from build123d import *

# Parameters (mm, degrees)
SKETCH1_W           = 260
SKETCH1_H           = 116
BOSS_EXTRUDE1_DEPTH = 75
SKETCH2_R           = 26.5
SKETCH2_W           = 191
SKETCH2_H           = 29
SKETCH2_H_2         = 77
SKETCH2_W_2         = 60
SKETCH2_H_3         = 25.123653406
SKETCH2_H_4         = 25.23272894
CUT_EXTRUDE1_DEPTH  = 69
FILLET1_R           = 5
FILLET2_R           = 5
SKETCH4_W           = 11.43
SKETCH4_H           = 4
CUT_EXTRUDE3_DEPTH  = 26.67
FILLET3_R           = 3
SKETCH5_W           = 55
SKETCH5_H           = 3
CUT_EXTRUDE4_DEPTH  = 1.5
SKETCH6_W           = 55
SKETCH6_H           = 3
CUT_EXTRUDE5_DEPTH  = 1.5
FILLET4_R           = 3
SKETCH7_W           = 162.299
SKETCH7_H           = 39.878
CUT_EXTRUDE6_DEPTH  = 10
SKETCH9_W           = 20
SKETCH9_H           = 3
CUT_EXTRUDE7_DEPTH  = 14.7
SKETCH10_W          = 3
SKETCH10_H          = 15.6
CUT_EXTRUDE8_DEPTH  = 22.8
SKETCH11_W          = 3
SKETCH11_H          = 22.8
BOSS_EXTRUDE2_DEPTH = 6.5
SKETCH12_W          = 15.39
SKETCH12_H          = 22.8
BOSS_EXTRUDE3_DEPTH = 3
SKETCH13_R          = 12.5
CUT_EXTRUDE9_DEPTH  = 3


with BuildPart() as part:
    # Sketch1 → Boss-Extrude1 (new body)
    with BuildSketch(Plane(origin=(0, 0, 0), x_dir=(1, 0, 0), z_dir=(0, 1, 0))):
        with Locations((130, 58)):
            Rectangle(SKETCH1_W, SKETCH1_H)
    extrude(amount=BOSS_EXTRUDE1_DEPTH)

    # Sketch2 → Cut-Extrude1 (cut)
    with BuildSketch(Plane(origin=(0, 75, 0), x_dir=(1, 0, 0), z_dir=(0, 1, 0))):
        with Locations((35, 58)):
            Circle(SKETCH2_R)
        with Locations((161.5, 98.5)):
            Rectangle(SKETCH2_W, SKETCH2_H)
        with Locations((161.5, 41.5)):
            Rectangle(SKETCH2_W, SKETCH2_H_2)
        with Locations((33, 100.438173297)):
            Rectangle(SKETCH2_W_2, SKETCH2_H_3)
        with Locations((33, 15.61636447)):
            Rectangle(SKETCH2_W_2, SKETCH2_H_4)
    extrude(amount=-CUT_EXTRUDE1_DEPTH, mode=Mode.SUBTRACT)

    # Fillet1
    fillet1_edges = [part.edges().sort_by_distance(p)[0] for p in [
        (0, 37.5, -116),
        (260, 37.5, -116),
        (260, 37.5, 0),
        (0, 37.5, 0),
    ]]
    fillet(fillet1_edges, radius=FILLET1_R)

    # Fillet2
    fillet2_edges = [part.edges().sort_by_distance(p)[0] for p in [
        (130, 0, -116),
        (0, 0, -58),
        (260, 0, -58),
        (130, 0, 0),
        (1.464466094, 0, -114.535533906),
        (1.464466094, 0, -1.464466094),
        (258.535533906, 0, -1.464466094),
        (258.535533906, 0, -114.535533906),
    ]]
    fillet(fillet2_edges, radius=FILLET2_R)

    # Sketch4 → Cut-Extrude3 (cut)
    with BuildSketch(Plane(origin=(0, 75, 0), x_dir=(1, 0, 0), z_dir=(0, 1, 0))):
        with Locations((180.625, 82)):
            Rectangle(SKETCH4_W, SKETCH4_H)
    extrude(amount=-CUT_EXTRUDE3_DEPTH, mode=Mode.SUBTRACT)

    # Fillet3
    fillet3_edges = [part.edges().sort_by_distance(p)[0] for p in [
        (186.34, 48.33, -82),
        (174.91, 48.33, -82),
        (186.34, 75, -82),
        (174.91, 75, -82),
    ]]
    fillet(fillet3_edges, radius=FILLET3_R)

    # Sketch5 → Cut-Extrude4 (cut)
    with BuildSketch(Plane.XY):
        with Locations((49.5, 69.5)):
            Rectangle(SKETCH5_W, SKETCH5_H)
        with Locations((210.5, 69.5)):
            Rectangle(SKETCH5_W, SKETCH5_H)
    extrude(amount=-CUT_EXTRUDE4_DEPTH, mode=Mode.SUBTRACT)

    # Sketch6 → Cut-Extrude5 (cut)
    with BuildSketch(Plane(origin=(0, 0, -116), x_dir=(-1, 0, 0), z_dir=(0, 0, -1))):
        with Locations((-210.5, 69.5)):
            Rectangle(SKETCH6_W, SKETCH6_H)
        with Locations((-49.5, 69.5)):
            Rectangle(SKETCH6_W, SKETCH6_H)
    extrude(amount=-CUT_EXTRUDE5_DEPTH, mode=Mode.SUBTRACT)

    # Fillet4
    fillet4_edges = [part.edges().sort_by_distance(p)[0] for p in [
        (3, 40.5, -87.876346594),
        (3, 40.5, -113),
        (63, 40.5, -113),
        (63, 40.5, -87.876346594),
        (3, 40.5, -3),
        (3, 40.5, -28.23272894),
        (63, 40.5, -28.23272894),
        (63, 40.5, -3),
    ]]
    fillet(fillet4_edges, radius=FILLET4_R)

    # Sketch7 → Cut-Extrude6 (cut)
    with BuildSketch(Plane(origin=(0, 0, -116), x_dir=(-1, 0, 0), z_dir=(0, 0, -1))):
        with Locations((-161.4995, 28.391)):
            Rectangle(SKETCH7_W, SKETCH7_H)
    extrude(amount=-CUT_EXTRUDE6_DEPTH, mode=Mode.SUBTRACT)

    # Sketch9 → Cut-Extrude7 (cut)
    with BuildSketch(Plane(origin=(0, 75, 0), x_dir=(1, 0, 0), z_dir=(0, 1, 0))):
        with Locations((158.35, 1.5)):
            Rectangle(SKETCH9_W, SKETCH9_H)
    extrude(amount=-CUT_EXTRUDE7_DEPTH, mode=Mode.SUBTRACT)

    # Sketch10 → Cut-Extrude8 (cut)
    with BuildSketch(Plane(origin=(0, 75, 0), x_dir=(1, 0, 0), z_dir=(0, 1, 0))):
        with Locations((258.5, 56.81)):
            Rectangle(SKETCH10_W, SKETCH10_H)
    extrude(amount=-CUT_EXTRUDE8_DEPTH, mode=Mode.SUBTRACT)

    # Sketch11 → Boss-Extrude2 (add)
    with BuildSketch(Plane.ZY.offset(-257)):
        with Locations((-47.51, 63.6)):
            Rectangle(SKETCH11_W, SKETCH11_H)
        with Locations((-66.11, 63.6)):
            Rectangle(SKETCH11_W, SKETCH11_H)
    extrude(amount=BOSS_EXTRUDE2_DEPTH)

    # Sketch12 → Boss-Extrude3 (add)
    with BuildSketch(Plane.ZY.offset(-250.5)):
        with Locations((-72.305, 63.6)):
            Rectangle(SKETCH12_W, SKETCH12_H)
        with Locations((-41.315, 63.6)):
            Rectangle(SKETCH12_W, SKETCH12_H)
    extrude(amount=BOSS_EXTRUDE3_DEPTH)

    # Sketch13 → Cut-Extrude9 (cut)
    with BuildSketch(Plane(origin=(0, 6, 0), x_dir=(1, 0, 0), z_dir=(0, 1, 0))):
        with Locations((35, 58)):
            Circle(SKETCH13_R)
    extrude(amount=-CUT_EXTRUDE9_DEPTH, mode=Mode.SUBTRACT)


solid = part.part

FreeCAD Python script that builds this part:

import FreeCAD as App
import Part
import Sketcher
from FreeCAD import Vector
Q = App.Units.Quantity


def edges_at(feature, points):
    """Names of the edges that pass closest to the given points."""
    edges = feature.Shape.Edges
    near = lambda p: min(range(len(edges)), key=lambda i: edges[i].distToShape(Part.Vertex(*p))[0])
    return sorted({f"Edge{near(p) + 1}" for p in points})


def add_polygon(sketch, points):
    """Adds a closed chain of lines whose ends are joined by coincident constraints."""
    first, n = sketch.GeometryCount, len(points)
    for a, b in zip(points, points[1:] + points[:1]):
        sketch.addGeometry(Part.LineSegment(App.Vector(*a, 0), App.Vector(*b, 0)), False)
    for i in range(n):
        sketch.addConstraint(Sketcher.Constraint("Coincident", first + i, 2, first + (i + 1) % n, 1))

doc = App.newDocument("Part")
body = doc.addObject("PartDesign::Body", "Body")

# Sketch on XZ plane
sketch1 = body.newObject("Sketcher::SketchObject", "Sketch")
sketch1.AttachmentSupport = (doc.getObject("XZ_Plane"), [""])
sketch1.MapMode = "FlatFace"
add_polygon(sketch1, [(0, -116), (0, 0), (260, 0), (260, -116)])  # lines 0-3
sketch1.addConstraint([
    Sketcher.Constraint("Vertical", 0),
    Sketcher.Constraint("Horizontal", 1),
    Sketcher.Constraint("Vertical", 2),
    Sketcher.Constraint("Horizontal", 3),
    Sketcher.Constraint("Coincident", 0, 2, -1, 1),
    Sketcher.Constraint("DistanceX", 1, 1, 1, 2, Q("260 mm")),
    Sketcher.Constraint("DistanceY", 0, 1, 0, 2, Q("116 mm")),
])
pad1 = body.newObject("PartDesign::Pad", "Pad")
pad1.Profile = sketch1
pad1.Length = 75
pad1.Reversed = True

# Sketch on XZ plane
sketch2 = body.newObject("Sketcher::SketchObject", "Sketch001")
sketch2.AttachmentSupport = (doc.getObject("XZ_Plane"), [""])
sketch2.MapMode = "FlatFace"
sketch2.AttachmentOffset = App.Placement(Vector(0, 0, -75), App.Rotation())
sketch2.addGeometry(Part.Circle(Vector(35, -58, 0), Vector(0, 0, 1), 26), False)  # 0
add_polygon(sketch2, [(66, -113), (66, -84), (257, -84), (257, -113)])  # lines 1-4
add_polygon(sketch2, [(66, -80), (66, -3), (257, -3), (257, -80)])  # lines 5-8
add_polygon(sketch2, [(3, -113), (3, -88), (63, -88), (63, -113)])  # lines 9-12
add_polygon(sketch2, [(3, -28), (3, -3), (63, -3), (63, -28)])  # lines 13-16
sketch2.addConstraint([
    Sketcher.Constraint("Vertical", 1),
    Sketcher.Constraint("Horizontal", 2),
    Sketcher.Constraint("Vertical", 3),
    Sketcher.Constraint("Horizontal", 4),
    Sketcher.Constraint("Vertical", 5),
    Sketcher.Constraint("Horizontal", 6),
    Sketcher.Constraint("Vertical", 7),
    Sketcher.Constraint("Horizontal", 8),
    Sketcher.Constraint("Vertical", 9),
    Sketcher.Constraint("Horizontal", 10),
    Sketcher.Constraint("Vertical", 11),
    Sketcher.Constraint("Horizontal", 12),
    Sketcher.Constraint("Vertical", 13),
    Sketcher.Constraint("Horizontal", 14),
    Sketcher.Constraint("Vertical", 15),
    Sketcher.Constraint("Horizontal", 16),
    Sketcher.Constraint("Horizontal", 4, 2, 11, 2),
    Sketcher.Constraint("Horizontal", 6, 2, 13, 2),
    Sketcher.Constraint("Vertical", 4, 2, 5, 2),
    Sketcher.Constraint("Vertical", 3, 2, 6, 2),
    Sketcher.Constraint("Vertical", 12, 2, 13, 2),
    Sketcher.Constraint("Vertical", 11, 2, 14, 2),
    Sketcher.Constraint("Diameter", 0, Q("53 mm")),
    Sketcher.Constraint("DistanceX", 2, 1, 2, 2, Q("191 mm")),
    Sketcher.Constraint("DistanceX", 10, 1, 10, 2, Q("60 mm")),
    Sketcher.Constraint("DistanceY", 1, 1, 1, 2, Q("29 mm")),
    Sketcher.Constraint("DistanceY", 5, 1, 5, 2, Q("77 mm")),
    Sketcher.Constraint("DistanceX", -1, 1, 0, 3, Q("35 mm")),
    Sketcher.Constraint("DistanceY", 0, 3, -1, 1, Q("58 mm")),
    Sketcher.Constraint("DistanceX", -1, 1, 1, 2, Q("66 mm")),
    Sketcher.Constraint("DistanceY", 1, 2, -1, 1, Q("84 mm")),
    Sketcher.Constraint("DistanceY", 5, 2, -1, 1, Q("3 mm")),
    Sketcher.Constraint("DistanceX", -1, 1, 9, 2, Q("3 mm")),
    Sketcher.Constraint("DistanceY", 13, 1, 13, 2, Q("25.232729 mm")),
    Sketcher.Constraint("DistanceY", 9, 1, 9, 2, Q("25.123653 mm")),
])
pocket1 = body.newObject("PartDesign::Pocket", "Pocket")
pocket1.Profile = sketch2
pocket1.Length = 69
pocket1.Reversed = True
doc.recompute()

fillet = body.newObject("PartDesign::Fillet", "Fillet")
fillet.Base = (pocket1, edges_at(pocket1, [
    (0, 37.5, -116),
    (260, 37.5, -116),
    (260, 37.5, 0),
    (0, 37.5, 0),
]))
fillet.Radius = 5
doc.recompute()

fillet2 = body.newObject("PartDesign::Fillet", "Fillet001")
fillet2.Base = (fillet, edges_at(fillet, [
    (130, 0, -116),
    (0, 0, -58),
    (260, 0, -58),
    (130, 0, 0),
    (1.464, 0, -114.536),
    (1.464, 0, -1.464),
    (258.536, 0, -1.464),
    (258.536, 0, -114.536),
]))
fillet2.Radius = 5

# Sketch on XZ plane
sketch3 = body.newObject("Sketcher::SketchObject", "Sketch002")
sketch3.AttachmentSupport = (doc.getObject("XZ_Plane"), [""])
sketch3.MapMode = "FlatFace"
sketch3.AttachmentOffset = App.Placement(Vector(0, 0, -75), App.Rotation())
add_polygon(sketch3, [(174.9, -84), (174.9, -80), (186.3, -80), (186.3, -84)])  # lines 0-3
sketch3.addConstraint([
    Sketcher.Constraint("Vertical", 0),
    Sketcher.Constraint("Horizontal", 1),
    Sketcher.Constraint("Vertical", 2),
    Sketcher.Constraint("Horizontal", 3),
    Sketcher.Constraint("DistanceY", 0, 1, 0, 2, Q("4 mm")),
    Sketcher.Constraint("DistanceY", 0, 2, -1, 1, Q("80 mm")),
    Sketcher.Constraint("DistanceX", 1, 1, 1, 2, Q("11.43 mm")),
    Sketcher.Constraint("DistanceX", -1, 1, 0, 2, Q("174.91 mm")),
])
pocket2 = body.newObject("PartDesign::Pocket", "Pocket001")
pocket2.Profile = sketch3
pocket2.Length = 26.67
pocket2.Reversed = True
doc.recompute()

fillet3 = body.newObject("PartDesign::Fillet", "Fillet002")
fillet3.Base = (pocket2, edges_at(pocket2, [
    (186.34, 48.33, -82),
    (174.91, 48.33, -82),
    (186.34, 75, -82),
    (174.91, 75, -82),
]))
fillet3.Radius = 3

# Sketch on XY plane
sketch4 = body.newObject("Sketcher::SketchObject", "Sketch003")
sketch4.AttachmentSupport = (doc.getObject("XY_Plane"), [""])
sketch4.MapMode = "FlatFace"
add_polygon(sketch4, [(22, 71), (22, 68), (77, 68), (77, 71)])  # lines 0-3
add_polygon(sketch4, [(183, 71), (183, 68), (238, 68), (238, 71)])  # lines 4-7
sketch4.addConstraint([
    Sketcher.Constraint("Vertical", 0),
    Sketcher.Constraint("Horizontal", 1),
    Sketcher.Constraint("Vertical", 2),
    Sketcher.Constraint("Horizontal", 3),
    Sketcher.Constraint("Vertical", 4),
    Sketcher.Constraint("Horizontal", 5),
    Sketcher.Constraint("Vertical", 6),
    Sketcher.Constraint("Horizontal", 7),
    Sketcher.Constraint("Horizontal", 1, 2, 4, 2),
    Sketcher.Constraint("Horizontal", 3, 2, 6, 2),
    Sketcher.Constraint("Equal", 3, 5),
    Sketcher.Constraint("DistanceX", 1, 1, 1, 2, Q("55 mm")),
    Sketcher.Constraint("DistanceY", 0, 2, 0, 1, Q("3 mm")),
    Sketcher.Constraint("DistanceX", -1, 1, 0, 2, Q("22 mm")),
    Sketcher.Constraint("DistanceY", -1, 1, 0, 2, Q("68 mm")),
    Sketcher.Constraint("DistanceX", -1, 1, 4, 2, Q("183 mm")),
])
pocket3 = body.newObject("PartDesign::Pocket", "Pocket002")
pocket3.Profile = sketch4
pocket3.Length = 1.5

# Sketch on XY plane
sketch5 = body.newObject("Sketcher::SketchObject", "Sketch004")
sketch5.AttachmentSupport = (doc.getObject("XY_Plane"), [""])
sketch5.MapMode = "FlatFace"
sketch5.AttachmentOffset = App.Placement(Vector(0, 0, -116), App.Rotation())
add_polygon(sketch5, [(238, 71), (238, 68), (183, 68), (183, 71)])  # lines 0-3
add_polygon(sketch5, [(77, 71), (77, 68), (22, 68), (22, 71)])  # lines 4-7
sketch5.addConstraint([
    Sketcher.Constraint("Vertical", 0),
    Sketcher.Constraint("Horizontal", 1),
    Sketcher.Constraint("Vertical", 2),
    Sketcher.Constraint("Horizontal", 3),
    Sketcher.Constraint("Vertical", 4),
    Sketcher.Constraint("Horizontal", 5),
    Sketcher.Constraint("Vertical", 6),
    Sketcher.Constraint("Horizontal", 7),
    Sketcher.Constraint("Horizontal", 1, 2, 4, 2),
    Sketcher.Constraint("Horizontal", 3, 2, 6, 2),
    Sketcher.Constraint("Equal", 3, 5),
    Sketcher.Constraint("DistanceX", 1, 2, 1, 1, Q("55 mm")),
    Sketcher.Constraint("DistanceY", 0, 2, 0, 1, Q("3 mm")),
    Sketcher.Constraint("DistanceX", -1, 1, 0, 2, Q("238 mm")),
    Sketcher.Constraint("DistanceY", -1, 1, 0, 2, Q("68 mm")),
    Sketcher.Constraint("DistanceX", -1, 1, 4, 2, Q("77 mm")),
])
pocket4 = body.newObject("PartDesign::Pocket", "Pocket003")
pocket4.Profile = sketch5
pocket4.Length = 1.5
pocket4.Reversed = True
doc.recompute()

fillet4 = body.newObject("PartDesign::Fillet", "Fillet003")
fillet4.Base = (pocket4, edges_at(pocket4, [
    (3, 40.5, -87.876),
    (3, 40.5, -113),
    (63, 40.5, -113),
    (63, 40.5, -87.876),
    (3, 40.5, -3),
    (3, 40.5, -28.233),
    (63, 40.5, -28.233),
    (63, 40.5, -3),
]))
fillet4.Radius = 3

# Sketch on XY plane
sketch6 = body.newObject("Sketcher::SketchObject", "Sketch005")
sketch6.AttachmentSupport = (doc.getObject("XY_Plane"), [""])
sketch6.MapMode = "FlatFace"
sketch6.AttachmentOffset = App.Placement(Vector(0, 0, -116), App.Rotation())
add_polygon(sketch6, [(243, 48), (243, 8), (80, 8), (80, 48)])  # lines 0-3
sketch6.addConstraint([
    Sketcher.Constraint("Vertical", 0),
    Sketcher.Constraint("Horizontal", 1),
    Sketcher.Constraint("Vertical", 2),
    Sketcher.Constraint("Horizontal", 3),
    Sketcher.Constraint("DistanceX", 1, 2, 1, 1, Q("162.299 mm")),
    Sketcher.Constraint("DistanceY", 0, 2, 0, 1, Q("39.878 mm")),
    Sketcher.Constraint("DistanceX", -1, 1, 1, 2, Q("80.35 mm")),
    Sketcher.Constraint("DistanceY", -1, 1, 2, 2, Q("48.33 mm")),
])
pocket5 = body.newObject("PartDesign::Pocket", "Pocket004")
pocket5.Profile = sketch6
pocket5.Length = 10
pocket5.Reversed = True

# Sketch on XZ plane
sketch7 = body.newObject("Sketcher::SketchObject", "Sketch006")
sketch7.AttachmentSupport = (doc.getObject("XZ_Plane"), [""])
sketch7.MapMode = "FlatFace"
sketch7.AttachmentOffset = App.Placement(Vector(0, 0, -75), App.Rotation())
add_polygon(sketch7, [(148.3, -3), (148.3, 0), (168.3, 0), (168.3, -3)])  # lines 0-3
sketch7.addConstraint([
    Sketcher.Constraint("Vertical", 0),
    Sketcher.Constraint("Horizontal", 1),
    Sketcher.Constraint("Vertical", 2),
    Sketcher.Constraint("Horizontal", 3),
    Sketcher.Constraint("PointOnObject", 0, 2, -1),
    Sketcher.Constraint("DistanceX", 1, 1, 1, 2, Q("20 mm")),
    Sketcher.Constraint("DistanceY", 0, 1, 0, 2, Q("3 mm")),
    Sketcher.Constraint("DistanceX", -1, 1, 0, 2, Q("148.35 mm")),
])
pocket6 = body.newObject("PartDesign::Pocket", "Pocket005")
pocket6.Profile = sketch7
pocket6.Length = 14.7
pocket6.Reversed = True

# Sketch on XZ plane
sketch8 = body.newObject("Sketcher::SketchObject", "Sketch007")
sketch8.AttachmentSupport = (doc.getObject("XZ_Plane"), [""])
sketch8.MapMode = "FlatFace"
sketch8.AttachmentOffset = App.Placement(Vector(0, 0, -75), App.Rotation())
add_polygon(sketch8, [(257, -64.6), (257, -49), (260, -49), (260, -64.6)])  # lines 0-3
sketch8.addConstraint([
    Sketcher.Constraint("Vertical", 0),
    Sketcher.Constraint("Horizontal", 1),
    Sketcher.Constraint("Vertical", 2),
    Sketcher.Constraint("Horizontal", 3),
    Sketcher.Constraint("DistanceX", 1, 1, 1, 2, Q("3 mm")),
    Sketcher.Constraint("DistanceY", 0, 1, 0, 2, Q("15.6 mm")),
    Sketcher.Constraint("DistanceX", -1, 1, 0, 2, Q("257 mm")),
    Sketcher.Constraint("DistanceY", 0, 2, -1, 1, Q("49.01 mm")),
])
pocket7 = body.newObject("PartDesign::Pocket", "Pocket006")
pocket7.Profile = sketch8
pocket7.Length = 22.8
pocket7.Reversed = True

# Sketch on YZ plane
sketch9 = body.newObject("Sketcher::SketchObject", "Sketch008")
sketch9.AttachmentSupport = (doc.getObject("YZ_Plane"), [""])
sketch9.MapMode = "FlatFace"
sketch9.AttachmentOffset = App.Placement(Vector(0, 0, 257), App.Rotation())
add_polygon(sketch9, [(75, -49), (52.2, -49), (52.2, -46), (75, -46)])  # lines 0-3
add_polygon(sketch9, [(75, -67.6), (52.2, -67.6), (52.2, -64.6), (75, -64.6)])  # lines 4-7
sketch9.addConstraint([
    Sketcher.Constraint("Horizontal", 0),
    Sketcher.Constraint("Vertical", 1),
    Sketcher.Constraint("Horizontal", 2),
    Sketcher.Constraint("Vertical", 3),
    Sketcher.Constraint("Horizontal", 4),
    Sketcher.Constraint("Vertical", 5),
    Sketcher.Constraint("Horizontal", 6),
    Sketcher.Constraint("Vertical", 7),
    Sketcher.Constraint("Vertical", 1, 2, 4, 2),
    Sketcher.Constraint("Vertical", 3, 2, 6, 2),
    Sketcher.Constraint("Equal", 3, 5),
    Sketcher.Constraint("DistanceY", 1, 1, 1, 2, Q("3 mm")),
    Sketcher.Constraint("DistanceX", 0, 2, 0, 1, Q("22.8 mm")),
    Sketcher.Constraint("DistanceX", -1, 1, 2, 2, Q("75 mm")),
    Sketcher.Constraint("DistanceY", 4, 2, 0, 2, Q("18.6 mm")),
    Sketcher.Constraint("DistanceY", 0, 2, -1, 1, Q("49.01 mm")),
])
pad2 = body.newObject("PartDesign::Pad", "Pad001")
pad2.Profile = sketch9
pad2.Length = 6.5
pad2.Reversed = True

# Sketch on YZ plane
sketch10 = body.newObject("Sketcher::SketchObject", "Sketch009")
sketch10.AttachmentSupport = (doc.getObject("YZ_Plane"), [""])
sketch10.MapMode = "FlatFace"
sketch10.AttachmentOffset = App.Placement(Vector(0, 0, 250.5), App.Rotation())
add_polygon(sketch10, [(75, -80), (52, -80), (52, -65), (75, -65)])  # lines 0-3
add_polygon(sketch10, [(75, -49), (52, -49), (52, -34), (75, -34)])  # lines 4-7
sketch10.addConstraint([
    Sketcher.Constraint("Horizontal", 0),
    Sketcher.Constraint("Vertical", 1),
    Sketcher.Constraint("Horizontal", 2),
    Sketcher.Constraint("Vertical", 3),
    Sketcher.Constraint("Horizontal", 4),
    Sketcher.Constraint("Vertical", 5),
    Sketcher.Constraint("Horizontal", 6),
    Sketcher.Constraint("Vertical", 7),
    Sketcher.Constraint("Vertical", 1, 2, 4, 2),
    Sketcher.Constraint("Vertical", 3, 2, 6, 2),
    Sketcher.Constraint("Equal", 3, 5),
    Sketcher.Constraint("DistanceX", 0, 2, 0, 1, Q("22.8 mm")),
    Sketcher.Constraint("DistanceY", 0, 2, -1, 1, Q("80 mm")),
    Sketcher.Constraint("DistanceX", -1, 1, 2, 2, Q("75 mm")),
    Sketcher.Constraint("DistanceY", 1, 1, 1, 2, Q("15.39 mm")),
    Sketcher.Constraint("DistanceY", 1, 2, 4, 2, Q("15.6 mm")),
])
pad3 = body.newObject("PartDesign::Pad", "Pad002")
pad3.Profile = sketch10
pad3.Length = 3
pad3.Reversed = True

# Sketch on XZ plane
sketch11 = body.newObject("Sketcher::SketchObject", "Sketch010")
sketch11.AttachmentSupport = (doc.getObject("XZ_Plane"), [""])
sketch11.MapMode = "FlatFace"
sketch11.AttachmentOffset = App.Placement(Vector(0, 0, -6), App.Rotation())
sketch11.addGeometry(Part.Circle(Vector(35, -58, 0), Vector(0, 0, 1), 12), False)
sketch11.addConstraint([
    Sketcher.Constraint("Diameter", 0, Q("25 mm")),
    Sketcher.Constraint("DistanceX", -1, 1, 0, 3, Q("35 mm")),
    Sketcher.Constraint("DistanceY", 0, 3, -1, 1, Q("58 mm")),
])
pocket8 = body.newObject("PartDesign::Pocket", "Pocket007")
pocket8.Profile = sketch11
pocket8.Length = 3
pocket8.Reversed = True

doc.recompute()
